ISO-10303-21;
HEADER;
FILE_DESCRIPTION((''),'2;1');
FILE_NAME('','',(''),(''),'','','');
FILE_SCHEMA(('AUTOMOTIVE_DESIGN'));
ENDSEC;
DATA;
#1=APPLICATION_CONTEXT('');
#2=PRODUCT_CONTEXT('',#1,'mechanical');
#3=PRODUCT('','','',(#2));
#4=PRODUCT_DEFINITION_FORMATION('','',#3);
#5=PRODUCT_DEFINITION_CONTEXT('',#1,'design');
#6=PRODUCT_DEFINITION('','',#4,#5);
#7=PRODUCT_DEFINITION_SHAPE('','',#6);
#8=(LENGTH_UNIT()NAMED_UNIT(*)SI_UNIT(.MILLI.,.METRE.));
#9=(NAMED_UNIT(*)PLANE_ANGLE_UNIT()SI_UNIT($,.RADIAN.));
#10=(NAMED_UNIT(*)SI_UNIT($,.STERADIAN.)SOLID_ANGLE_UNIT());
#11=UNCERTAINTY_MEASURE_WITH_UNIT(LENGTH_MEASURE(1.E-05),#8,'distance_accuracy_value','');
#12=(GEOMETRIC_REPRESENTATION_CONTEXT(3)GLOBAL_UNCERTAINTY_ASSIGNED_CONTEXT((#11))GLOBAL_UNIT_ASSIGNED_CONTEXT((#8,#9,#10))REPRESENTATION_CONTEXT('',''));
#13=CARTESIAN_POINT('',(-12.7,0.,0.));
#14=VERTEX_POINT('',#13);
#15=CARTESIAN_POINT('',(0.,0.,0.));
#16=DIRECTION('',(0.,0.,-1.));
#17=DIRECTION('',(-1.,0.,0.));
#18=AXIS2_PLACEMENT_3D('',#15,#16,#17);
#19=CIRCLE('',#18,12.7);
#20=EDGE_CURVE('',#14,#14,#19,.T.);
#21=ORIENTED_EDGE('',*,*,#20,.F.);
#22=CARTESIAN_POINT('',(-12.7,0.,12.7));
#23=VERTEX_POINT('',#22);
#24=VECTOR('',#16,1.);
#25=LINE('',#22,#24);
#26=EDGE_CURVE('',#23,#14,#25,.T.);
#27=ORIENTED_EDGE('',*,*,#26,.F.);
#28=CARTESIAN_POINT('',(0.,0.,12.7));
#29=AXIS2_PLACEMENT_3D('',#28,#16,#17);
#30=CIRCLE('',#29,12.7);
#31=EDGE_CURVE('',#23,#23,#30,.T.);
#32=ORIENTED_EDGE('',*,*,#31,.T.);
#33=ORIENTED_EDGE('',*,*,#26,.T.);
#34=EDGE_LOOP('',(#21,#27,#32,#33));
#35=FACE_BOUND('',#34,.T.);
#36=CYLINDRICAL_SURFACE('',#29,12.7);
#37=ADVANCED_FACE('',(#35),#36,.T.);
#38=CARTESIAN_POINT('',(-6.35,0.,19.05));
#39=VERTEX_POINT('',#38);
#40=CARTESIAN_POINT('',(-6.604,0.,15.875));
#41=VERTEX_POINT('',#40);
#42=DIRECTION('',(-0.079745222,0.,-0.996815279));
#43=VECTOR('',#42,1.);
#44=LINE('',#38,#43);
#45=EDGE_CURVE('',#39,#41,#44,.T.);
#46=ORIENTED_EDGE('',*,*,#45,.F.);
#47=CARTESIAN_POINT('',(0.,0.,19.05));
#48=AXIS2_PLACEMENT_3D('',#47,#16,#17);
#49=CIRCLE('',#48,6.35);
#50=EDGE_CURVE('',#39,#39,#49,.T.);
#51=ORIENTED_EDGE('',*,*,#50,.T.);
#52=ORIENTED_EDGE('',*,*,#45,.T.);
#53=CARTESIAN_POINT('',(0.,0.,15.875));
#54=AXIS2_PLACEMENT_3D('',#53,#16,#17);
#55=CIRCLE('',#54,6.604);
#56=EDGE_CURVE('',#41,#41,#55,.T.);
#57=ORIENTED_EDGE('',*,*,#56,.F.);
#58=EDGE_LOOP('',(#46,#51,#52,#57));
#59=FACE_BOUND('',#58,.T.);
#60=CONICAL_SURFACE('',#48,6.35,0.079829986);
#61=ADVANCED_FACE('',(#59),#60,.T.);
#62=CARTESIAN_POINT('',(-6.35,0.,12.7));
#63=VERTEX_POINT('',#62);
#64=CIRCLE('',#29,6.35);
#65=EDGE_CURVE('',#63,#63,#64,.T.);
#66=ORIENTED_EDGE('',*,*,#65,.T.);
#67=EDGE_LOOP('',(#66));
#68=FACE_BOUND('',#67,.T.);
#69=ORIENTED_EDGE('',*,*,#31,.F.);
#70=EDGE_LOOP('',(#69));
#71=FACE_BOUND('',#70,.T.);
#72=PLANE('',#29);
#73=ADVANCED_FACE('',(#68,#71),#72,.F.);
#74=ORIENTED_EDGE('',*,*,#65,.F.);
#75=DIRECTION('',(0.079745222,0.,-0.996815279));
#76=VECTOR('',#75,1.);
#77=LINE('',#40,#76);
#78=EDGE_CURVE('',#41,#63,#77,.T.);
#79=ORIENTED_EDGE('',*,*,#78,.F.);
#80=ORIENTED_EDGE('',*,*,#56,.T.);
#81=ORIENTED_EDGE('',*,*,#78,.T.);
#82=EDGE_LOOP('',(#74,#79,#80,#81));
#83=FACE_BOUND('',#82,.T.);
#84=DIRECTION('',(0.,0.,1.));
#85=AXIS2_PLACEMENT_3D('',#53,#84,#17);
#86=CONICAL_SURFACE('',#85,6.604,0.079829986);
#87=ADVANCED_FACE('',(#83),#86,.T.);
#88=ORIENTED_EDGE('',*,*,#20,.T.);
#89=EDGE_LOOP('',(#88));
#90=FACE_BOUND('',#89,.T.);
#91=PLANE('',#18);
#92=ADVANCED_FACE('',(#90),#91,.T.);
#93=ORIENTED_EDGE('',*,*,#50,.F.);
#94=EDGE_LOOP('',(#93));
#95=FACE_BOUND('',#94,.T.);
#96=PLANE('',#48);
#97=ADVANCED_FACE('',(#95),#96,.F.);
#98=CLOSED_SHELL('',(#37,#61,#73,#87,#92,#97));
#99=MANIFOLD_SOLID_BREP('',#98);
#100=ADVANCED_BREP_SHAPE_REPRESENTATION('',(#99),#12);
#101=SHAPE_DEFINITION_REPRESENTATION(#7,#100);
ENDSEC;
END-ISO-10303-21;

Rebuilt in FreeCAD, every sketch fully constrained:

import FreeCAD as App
import Part
import Sketcher
from FreeCAD import Vector
Q = App.Units.Quantity


def add_polygon(sketch, points):
    """Adds a closed chain of lines whose ends are joined by coincident constraints."""
    first, n = sketch.GeometryCount, len(points)
    for a, b in zip(points, points[1:] + points[:1]):
        sketch.addGeometry(Part.LineSegment(App.Vector(*a, 0), App.Vector(*b, 0)), False)
    for i in range(n):
        sketch.addConstraint(Sketcher.Constraint("Coincident", first + i, 2, first + (i + 1) % n, 1))

doc = App.newDocument("Part")
body = doc.addObject("PartDesign::Body", "Body")

# Sketch on XZ plane
sketch1 = body.newObject("Sketcher::SketchObject", "Sketch")
sketch1.AttachmentSupport = (doc.getObject("XZ_Plane"), [""])
sketch1.MapMode = "FlatFace"
add_polygon(sketch1, [(-6.3, 19.1), (-6.6, 15.9), (-6.3, 12.7), (-12.7, 12.7), (-12.7, 0), (0, 0), (0, 19.1)])  # lines 0-6
sketch1.addConstraint([
    Sketcher.Constraint("Horizontal", 2),
    Sketcher.Constraint("Vertical", 3),
    Sketcher.Constraint("Horizontal", 4),
    Sketcher.Constraint("Vertical", 5),
    Sketcher.Constraint("Horizontal", 6),
    Sketcher.Constraint("Coincident", 4, 2, -1, 1),
    Sketcher.Constraint("Vertical", 1, 2, 6, 2),
    Sketcher.Constraint("Equal", 2, 6),
    Sketcher.Constraint("Equal", 4, 3),
    Sketcher.Constraint("Equal", 0, 1),
    Sketcher.Constraint("DistanceX", 4, 1, 4, 2, Q("0.5 in")),
    Sketcher.Constraint("DistanceY", 5, 1, 5, 2, Q("0.75 in")),
    Sketcher.Constraint("DistanceX", 0, 2, -1, 1, Q("0.26 in")),
])
revolution = body.newObject("PartDesign::Revolution", "Revolution")
revolution.Profile = sketch1
revolution.ReferenceAxis = (sketch1, ["V_Axis"])
revolution.Angle = 360

doc.recompute()
